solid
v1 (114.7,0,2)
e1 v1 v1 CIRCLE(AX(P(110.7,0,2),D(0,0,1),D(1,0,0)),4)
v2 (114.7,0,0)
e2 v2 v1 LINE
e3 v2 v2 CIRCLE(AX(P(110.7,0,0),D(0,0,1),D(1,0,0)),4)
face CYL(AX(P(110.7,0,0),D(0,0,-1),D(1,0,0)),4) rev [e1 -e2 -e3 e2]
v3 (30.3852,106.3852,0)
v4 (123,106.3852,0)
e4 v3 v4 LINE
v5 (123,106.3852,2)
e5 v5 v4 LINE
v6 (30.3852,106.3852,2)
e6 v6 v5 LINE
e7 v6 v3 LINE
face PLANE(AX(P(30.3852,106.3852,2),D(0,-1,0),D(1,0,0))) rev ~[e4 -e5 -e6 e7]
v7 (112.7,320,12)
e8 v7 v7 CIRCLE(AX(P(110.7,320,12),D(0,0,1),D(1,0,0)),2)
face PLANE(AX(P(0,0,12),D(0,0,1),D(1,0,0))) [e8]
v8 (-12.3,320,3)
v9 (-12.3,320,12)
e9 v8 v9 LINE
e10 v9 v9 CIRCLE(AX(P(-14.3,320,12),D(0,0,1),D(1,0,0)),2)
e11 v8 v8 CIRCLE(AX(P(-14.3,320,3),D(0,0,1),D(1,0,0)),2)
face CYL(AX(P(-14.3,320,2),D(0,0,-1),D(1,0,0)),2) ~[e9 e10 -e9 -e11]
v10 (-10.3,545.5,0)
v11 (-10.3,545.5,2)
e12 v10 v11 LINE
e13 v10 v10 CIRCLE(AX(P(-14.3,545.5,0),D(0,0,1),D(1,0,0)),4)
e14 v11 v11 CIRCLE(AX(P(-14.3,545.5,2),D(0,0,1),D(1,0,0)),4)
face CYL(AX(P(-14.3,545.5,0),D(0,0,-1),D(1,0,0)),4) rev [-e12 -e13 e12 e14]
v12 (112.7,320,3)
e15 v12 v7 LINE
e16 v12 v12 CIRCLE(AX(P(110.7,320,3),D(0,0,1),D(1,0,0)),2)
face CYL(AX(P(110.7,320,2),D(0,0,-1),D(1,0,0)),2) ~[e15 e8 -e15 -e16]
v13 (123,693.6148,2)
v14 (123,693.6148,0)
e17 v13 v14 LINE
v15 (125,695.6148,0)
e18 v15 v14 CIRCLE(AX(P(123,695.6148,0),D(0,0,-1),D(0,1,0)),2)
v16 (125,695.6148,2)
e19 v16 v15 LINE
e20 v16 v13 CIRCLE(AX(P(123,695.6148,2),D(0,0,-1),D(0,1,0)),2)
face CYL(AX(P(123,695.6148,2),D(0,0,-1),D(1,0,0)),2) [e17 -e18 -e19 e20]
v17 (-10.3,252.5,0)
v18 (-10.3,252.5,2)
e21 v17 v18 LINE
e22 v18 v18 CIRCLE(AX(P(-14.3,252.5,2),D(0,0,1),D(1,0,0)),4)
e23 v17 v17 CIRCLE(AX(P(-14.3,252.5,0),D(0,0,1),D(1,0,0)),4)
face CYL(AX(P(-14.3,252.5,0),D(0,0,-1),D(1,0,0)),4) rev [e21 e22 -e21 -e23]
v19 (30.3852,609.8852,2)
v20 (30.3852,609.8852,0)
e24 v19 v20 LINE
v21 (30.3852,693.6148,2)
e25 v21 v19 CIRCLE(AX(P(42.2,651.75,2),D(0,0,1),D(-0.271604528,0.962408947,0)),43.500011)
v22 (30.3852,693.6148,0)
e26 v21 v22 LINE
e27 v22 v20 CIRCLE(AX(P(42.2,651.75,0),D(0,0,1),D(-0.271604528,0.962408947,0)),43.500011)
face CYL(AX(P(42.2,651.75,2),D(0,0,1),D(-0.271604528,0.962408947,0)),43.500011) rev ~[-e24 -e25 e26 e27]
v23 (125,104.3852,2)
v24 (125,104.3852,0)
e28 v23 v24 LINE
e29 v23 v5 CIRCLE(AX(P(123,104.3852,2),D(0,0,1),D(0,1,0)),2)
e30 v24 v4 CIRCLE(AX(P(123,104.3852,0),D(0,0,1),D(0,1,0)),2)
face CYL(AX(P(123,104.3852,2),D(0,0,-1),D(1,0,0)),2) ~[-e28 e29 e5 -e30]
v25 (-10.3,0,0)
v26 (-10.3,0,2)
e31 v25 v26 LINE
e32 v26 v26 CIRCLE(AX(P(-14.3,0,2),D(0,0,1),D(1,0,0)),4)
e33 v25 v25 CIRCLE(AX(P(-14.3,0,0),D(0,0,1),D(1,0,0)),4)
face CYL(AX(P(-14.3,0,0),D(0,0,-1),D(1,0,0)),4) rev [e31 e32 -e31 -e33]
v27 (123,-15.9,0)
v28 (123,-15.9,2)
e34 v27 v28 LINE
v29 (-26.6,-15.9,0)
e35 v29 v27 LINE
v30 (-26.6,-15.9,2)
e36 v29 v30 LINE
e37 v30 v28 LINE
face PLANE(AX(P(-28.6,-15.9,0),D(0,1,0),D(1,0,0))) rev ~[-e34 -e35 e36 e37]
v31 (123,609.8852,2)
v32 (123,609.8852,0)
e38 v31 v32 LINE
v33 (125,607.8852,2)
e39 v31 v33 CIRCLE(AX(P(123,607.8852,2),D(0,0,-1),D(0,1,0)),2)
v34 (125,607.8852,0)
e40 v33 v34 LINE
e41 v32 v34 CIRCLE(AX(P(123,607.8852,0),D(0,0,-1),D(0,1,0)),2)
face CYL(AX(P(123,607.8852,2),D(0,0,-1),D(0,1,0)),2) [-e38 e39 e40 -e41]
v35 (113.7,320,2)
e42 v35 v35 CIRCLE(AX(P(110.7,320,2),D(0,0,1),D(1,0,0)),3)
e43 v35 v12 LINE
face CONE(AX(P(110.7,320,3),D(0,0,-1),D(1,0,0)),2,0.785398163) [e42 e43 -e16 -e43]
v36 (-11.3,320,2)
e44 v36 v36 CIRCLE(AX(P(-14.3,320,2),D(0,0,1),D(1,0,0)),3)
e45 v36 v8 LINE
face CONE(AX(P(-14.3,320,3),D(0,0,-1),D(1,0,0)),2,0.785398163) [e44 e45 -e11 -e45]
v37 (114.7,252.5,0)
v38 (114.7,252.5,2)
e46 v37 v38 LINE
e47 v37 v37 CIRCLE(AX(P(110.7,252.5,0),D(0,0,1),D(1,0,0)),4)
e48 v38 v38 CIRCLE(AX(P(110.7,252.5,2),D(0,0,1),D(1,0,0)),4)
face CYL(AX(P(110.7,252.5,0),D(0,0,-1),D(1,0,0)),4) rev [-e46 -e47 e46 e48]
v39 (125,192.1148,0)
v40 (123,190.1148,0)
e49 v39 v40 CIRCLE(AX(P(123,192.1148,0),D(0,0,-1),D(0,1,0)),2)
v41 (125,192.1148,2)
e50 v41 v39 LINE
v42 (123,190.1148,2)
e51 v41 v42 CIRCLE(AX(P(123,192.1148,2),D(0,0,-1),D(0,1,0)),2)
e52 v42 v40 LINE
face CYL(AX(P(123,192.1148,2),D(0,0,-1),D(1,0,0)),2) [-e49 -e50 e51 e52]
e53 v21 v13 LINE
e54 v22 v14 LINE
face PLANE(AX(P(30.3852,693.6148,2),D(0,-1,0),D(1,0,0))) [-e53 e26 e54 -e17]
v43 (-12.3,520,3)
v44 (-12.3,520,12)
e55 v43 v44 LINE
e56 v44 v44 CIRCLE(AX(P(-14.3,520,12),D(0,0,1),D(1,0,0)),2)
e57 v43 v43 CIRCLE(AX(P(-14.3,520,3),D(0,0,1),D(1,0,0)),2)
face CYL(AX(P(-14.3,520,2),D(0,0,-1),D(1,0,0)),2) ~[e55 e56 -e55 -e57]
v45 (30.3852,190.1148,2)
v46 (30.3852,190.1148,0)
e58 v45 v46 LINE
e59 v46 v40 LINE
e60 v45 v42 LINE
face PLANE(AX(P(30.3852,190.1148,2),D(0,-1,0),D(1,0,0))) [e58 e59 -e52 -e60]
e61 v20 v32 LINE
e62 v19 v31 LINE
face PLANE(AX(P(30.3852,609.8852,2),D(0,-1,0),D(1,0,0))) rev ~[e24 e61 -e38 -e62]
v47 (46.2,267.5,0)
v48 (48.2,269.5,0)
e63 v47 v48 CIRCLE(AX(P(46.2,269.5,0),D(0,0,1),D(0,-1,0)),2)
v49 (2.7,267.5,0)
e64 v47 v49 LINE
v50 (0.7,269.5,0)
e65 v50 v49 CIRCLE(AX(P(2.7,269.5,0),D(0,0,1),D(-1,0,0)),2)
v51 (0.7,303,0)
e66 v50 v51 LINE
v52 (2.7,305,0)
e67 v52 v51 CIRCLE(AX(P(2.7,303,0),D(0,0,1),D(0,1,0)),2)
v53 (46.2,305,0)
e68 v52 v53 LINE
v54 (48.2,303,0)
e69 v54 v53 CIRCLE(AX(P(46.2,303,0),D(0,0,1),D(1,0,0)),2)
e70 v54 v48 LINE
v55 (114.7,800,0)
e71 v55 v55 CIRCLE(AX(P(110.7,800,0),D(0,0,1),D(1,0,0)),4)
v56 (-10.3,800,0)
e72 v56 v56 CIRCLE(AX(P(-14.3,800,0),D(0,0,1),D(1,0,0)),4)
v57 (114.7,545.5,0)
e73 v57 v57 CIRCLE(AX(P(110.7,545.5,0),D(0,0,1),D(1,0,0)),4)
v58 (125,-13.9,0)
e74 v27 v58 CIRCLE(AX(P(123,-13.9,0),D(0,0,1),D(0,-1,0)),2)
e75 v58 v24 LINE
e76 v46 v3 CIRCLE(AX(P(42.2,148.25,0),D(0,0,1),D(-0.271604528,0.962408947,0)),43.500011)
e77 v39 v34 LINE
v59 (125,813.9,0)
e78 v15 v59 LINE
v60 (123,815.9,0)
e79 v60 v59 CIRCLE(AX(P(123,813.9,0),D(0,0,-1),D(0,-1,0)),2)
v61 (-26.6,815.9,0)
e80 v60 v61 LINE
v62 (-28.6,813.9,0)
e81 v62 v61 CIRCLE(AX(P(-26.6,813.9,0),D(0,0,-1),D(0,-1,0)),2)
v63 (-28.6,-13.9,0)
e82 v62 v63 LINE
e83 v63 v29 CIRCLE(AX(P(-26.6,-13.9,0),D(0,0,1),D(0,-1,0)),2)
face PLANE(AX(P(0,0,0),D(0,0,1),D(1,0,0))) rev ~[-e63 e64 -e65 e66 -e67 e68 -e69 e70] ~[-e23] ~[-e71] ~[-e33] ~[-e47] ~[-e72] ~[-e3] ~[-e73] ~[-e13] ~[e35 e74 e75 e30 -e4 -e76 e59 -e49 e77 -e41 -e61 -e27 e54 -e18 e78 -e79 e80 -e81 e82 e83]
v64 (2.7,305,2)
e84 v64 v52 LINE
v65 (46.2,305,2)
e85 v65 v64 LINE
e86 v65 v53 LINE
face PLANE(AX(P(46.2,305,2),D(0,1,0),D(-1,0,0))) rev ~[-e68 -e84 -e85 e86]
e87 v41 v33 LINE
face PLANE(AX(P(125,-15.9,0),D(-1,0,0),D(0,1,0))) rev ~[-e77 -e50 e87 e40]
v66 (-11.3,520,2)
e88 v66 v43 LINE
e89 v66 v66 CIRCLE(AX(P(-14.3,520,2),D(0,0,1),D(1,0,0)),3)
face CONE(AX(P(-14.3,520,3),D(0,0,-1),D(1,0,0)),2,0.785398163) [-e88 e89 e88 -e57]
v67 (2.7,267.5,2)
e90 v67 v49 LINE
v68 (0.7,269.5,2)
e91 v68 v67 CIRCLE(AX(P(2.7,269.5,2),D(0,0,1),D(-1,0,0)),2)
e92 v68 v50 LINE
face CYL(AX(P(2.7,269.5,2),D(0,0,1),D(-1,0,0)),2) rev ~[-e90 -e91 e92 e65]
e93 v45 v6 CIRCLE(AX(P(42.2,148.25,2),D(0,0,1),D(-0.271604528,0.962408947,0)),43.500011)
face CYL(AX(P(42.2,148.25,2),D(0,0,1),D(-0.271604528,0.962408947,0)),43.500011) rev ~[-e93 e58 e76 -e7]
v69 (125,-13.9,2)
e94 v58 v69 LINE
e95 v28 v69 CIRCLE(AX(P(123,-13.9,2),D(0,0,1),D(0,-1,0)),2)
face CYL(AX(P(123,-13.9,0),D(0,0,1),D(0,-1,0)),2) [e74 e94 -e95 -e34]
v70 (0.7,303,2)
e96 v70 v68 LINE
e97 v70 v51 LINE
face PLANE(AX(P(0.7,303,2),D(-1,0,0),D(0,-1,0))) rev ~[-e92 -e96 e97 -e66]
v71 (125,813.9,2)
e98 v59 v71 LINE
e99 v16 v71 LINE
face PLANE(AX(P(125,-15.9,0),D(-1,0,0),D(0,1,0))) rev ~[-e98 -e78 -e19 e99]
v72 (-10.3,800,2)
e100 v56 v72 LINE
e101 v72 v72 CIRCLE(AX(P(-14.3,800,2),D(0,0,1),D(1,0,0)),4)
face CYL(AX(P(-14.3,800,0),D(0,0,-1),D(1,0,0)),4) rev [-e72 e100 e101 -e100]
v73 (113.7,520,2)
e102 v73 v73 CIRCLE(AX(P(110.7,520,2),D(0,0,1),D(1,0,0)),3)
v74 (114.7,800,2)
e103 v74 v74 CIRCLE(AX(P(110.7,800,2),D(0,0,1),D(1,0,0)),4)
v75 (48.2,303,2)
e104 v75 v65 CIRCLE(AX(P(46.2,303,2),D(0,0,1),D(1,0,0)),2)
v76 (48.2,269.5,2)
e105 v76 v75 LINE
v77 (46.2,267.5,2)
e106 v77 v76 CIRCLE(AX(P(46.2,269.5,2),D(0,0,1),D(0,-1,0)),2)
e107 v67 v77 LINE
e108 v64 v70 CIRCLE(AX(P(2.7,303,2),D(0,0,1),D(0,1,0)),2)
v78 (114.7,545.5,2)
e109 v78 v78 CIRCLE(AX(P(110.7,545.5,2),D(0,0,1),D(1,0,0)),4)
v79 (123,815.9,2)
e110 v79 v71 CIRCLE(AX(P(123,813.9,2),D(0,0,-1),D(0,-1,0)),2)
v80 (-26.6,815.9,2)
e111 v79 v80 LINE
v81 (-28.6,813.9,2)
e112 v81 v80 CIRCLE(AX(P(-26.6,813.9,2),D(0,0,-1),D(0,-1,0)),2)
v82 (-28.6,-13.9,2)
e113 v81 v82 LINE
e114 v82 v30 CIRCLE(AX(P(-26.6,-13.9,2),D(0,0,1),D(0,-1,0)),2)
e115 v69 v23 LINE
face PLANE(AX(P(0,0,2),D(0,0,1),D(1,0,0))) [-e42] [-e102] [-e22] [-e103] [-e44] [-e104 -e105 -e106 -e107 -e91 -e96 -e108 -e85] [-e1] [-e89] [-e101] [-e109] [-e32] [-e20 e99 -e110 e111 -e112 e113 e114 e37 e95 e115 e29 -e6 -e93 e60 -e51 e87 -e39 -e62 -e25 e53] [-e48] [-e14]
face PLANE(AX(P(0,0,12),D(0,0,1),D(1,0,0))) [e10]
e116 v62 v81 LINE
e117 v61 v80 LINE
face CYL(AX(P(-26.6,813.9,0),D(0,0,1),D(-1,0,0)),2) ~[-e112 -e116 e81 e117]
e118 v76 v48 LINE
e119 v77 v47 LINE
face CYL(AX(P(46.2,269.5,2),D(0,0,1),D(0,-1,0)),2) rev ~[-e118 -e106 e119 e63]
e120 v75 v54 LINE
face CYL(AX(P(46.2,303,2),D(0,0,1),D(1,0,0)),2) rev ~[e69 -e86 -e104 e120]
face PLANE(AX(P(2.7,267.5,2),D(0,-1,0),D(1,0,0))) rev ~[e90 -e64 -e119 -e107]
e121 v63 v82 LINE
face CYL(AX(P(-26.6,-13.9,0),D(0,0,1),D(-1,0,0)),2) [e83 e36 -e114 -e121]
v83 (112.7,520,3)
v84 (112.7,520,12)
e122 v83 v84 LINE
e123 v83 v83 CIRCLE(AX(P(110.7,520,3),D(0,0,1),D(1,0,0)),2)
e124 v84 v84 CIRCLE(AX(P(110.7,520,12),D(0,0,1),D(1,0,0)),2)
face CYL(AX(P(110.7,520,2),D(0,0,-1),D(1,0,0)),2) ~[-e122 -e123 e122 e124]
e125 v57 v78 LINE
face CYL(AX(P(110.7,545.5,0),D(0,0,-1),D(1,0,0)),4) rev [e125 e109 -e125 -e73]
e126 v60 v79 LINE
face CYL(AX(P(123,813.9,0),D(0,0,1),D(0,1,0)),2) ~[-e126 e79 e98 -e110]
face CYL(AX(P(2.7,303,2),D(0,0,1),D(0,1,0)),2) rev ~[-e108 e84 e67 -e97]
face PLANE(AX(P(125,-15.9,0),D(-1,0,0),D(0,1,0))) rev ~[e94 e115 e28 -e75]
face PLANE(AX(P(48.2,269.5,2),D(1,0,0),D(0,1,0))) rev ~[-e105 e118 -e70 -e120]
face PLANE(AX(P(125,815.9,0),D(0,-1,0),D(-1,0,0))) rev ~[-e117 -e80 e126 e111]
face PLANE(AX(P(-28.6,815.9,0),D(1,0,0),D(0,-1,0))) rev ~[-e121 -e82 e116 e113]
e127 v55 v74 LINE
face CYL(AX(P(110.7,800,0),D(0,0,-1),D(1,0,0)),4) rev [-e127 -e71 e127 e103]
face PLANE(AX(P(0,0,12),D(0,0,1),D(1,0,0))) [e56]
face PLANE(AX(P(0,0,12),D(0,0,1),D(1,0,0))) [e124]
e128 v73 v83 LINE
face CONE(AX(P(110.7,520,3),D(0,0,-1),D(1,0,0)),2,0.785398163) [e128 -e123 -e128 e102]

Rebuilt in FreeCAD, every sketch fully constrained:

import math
import FreeCAD as App
import Part
import Sketcher


def edges_at(feature, points):
    """Names of the edges that pass closest to the given points."""
    edges = feature.Shape.Edges
    near = lambda p: min(range(len(edges)), key=lambda i: edges[i].distToShape(Part.Vertex(*p))[0])
    return sorted({f"Edge{near(p) + 1}" for p in points})

doc = App.newDocument("Part")
body = doc.addObject("PartDesign::Body", "Body")

sketch1 = body.newObject("Sketcher::SketchObject", "Sketch")
sketch1.AttachmentSupport = (doc.getObject("XY_Plane"), [""])
sketch1.MapMode = "FlatFace"
sketch1.addGeometry([
    Part.LineSegment(App.Vector(-28.6, 815.9, 0), App.Vector(-28.6, -15.9, 0)),
    Part.LineSegment(App.Vector(-28.6, -15.9, 0), App.Vector(125, -15.9, 0)),
    Part.LineSegment(App.Vector(125, -15.9, 0), App.Vector(125, 815.9, 0)),
    Part.LineSegment(App.Vector(125, 815.9, 0), App.Vector(-28.6, 815.9, 0)),
    Part.Circle(App.Vector(-14.3, 0, 0), App.Vector(0, 0, 1), 4),
    Part.Circle(App.Vector(-14.3, 252.5, 0), App.Vector(0, 0, 1), 4),
    Part.Circle(App.Vector(110.7, 0, 0), App.Vector(0, 0, 1), 4),
    Part.Circle(App.Vector(110.7, 252.5, 0), App.Vector(0, 0, 1), 4),
    Part.Circle(App.Vector(-14.3, 545.5, 0), App.Vector(0, 0, 1), 4),
    Part.Circle(App.Vector(-14.3, 800, 0), App.Vector(0, 0, 1), 4),
    Part.Circle(App.Vector(110.7, 545.5, 0), App.Vector(0, 0, 1), 4),
    Part.Circle(App.Vector(110.7, 800, 0), App.Vector(0, 0, 1), 4),
], False)
sketch1.addConstraint([
    Sketcher.Constraint("Coincident", 0, 2, 1, 1),
    Sketcher.Constraint("Coincident", 1, 2, 2, 1),
    Sketcher.Constraint("Coincident", 2, 2, 3, 1),
    Sketcher.Constraint("Coincident", 3, 2, 0, 1),
    Sketcher.Constraint("Vertical", 0),
    Sketcher.Constraint("Horizontal", 1),
    Sketcher.Constraint("Vertical", 2),
    Sketcher.Constraint("Horizontal", 3),
    Sketcher.Constraint("Equal", 4, 5),
    Sketcher.Constraint("Equal", 5, 6),
    Sketcher.Constraint("Equal", 6, 7),
    Sketcher.Constraint("Equal", 7, 8),
    Sketcher.Constraint("Equal", 8, 9),
    Sketcher.Constraint("Equal", 9, 10),
    Sketcher.Constraint("Equal", 10, 11),
    Sketcher.Constraint("PointOnObject", 4, 3, -1),
    Sketcher.Constraint("PointOnObject", 6, 3, -1),
    Sketcher.Constraint("Horizontal", 5, 3, 7, 3),
    Sketcher.Constraint("Horizontal", 8, 3, 10, 3),
    Sketcher.Constraint("Horizontal", 9, 3, 11, 3),
    Sketcher.Constraint("Vertical", 4, 3, 5, 3),
    Sketcher.Constraint("Vertical", 6, 3, 7, 3),
    Sketcher.Constraint("Vertical", 5, 3, 8, 3),
    Sketcher.Constraint("Vertical", 8, 3, 9, 3),
    Sketcher.Constraint("Vertical", 7, 3, 10, 3),
    Sketcher.Constraint("Vertical", 10, 3, 11, 3),
    Sketcher.Constraint("Diameter", 4, 8.0),
    Sketcher.Constraint("DistanceX", 1, 1, 1, 2, 153.6),
    Sketcher.Constraint("DistanceY", 0, 2, 0, 1, 831.8),
    Sketcher.Constraint("DistanceY", -1, 1, 9, 3, 800.0),
    Sketcher.Constraint("DistanceX", -1, 1, 1, 2, 125.0),
    Sketcher.Constraint("DistanceX", 4, 3, 6, 3, 125.0),
    Sketcher.Constraint("DistanceY", 5, 3, 8, 3, 293.0),
    Sketcher.Constraint("DistanceX", 4, 3, -1, 1, 14.3),
    Sketcher.Constraint("DistanceY", -1, 1, 5, 3, 252.5),
    Sketcher.Constraint("DistanceY", 0, 2, -1, 1, 15.9),
])
pad1 = body.newObject("PartDesign::Pad", "Pad")
pad1.Profile = sketch1
pad1.Length = 2

sketch2 = body.newObject("Sketcher::SketchObject", "Sketch001")
sketch2.AttachmentSupport = (doc.getObject("XY_Plane"), [""])
sketch2.MapMode = "FlatFace"
sketch2.AttachmentOffset = App.Placement(App.Vector(0, 0, 2), App.Rotation())
sketch2.addGeometry([
    Part.LineSegment(App.Vector(125, 190, 0), App.Vector(30, 190, 0)),
    Part.ArcOfCircle(Part.Circle(App.Vector(42, 148, 0), App.Vector(0, 0, 1), 44), math.radians(106), math.radians(254)),
    Part.LineSegment(App.Vector(30, 106, 0), App.Vector(125, 106, 0)),
    Part.LineSegment(App.Vector(125, 106, 0), App.Vector(125, 190, 0)),
    Part.LineSegment(App.Vector(125, 694, 0), App.Vector(30, 694, 0)),
    Part.ArcOfCircle(Part.Circle(App.Vector(42, 652, 0), App.Vector(0, 0, 1), 44), math.radians(106), math.radians(254)),
    Part.LineSegment(App.Vector(30, 610, 0), App.Vector(125, 610, 0)),
    Part.LineSegment(App.Vector(125, 610, 0), App.Vector(125, 694, 0)),
], False)
sketch2.addConstraint([
    Sketcher.Constraint("Coincident", 0, 2, 1, 1),
    Sketcher.Constraint("Coincident", 1, 2, 2, 1),
    Sketcher.Constraint("Coincident", 2, 2, 3, 1),
    Sketcher.Constraint("Coincident", 3, 2, 0, 1),
    Sketcher.Constraint("Coincident", 4, 2, 5, 1),
    Sketcher.Constraint("Coincident", 5, 2, 6, 1),
    Sketcher.Constraint("Coincident", 6, 2, 7, 1),
    Sketcher.Constraint("Coincident", 7, 2, 4, 1),
    Sketcher.Constraint("Horizontal", 0),
    Sketcher.Constraint("Horizontal", 2),
    Sketcher.Constraint("Vertical", 3),
    Sketcher.Constraint("Horizontal", 4),
    Sketcher.Constraint("Horizontal", 6),
    Sketcher.Constraint("Vertical", 7),
    Sketcher.Constraint("Equal", 1, 5),
    Sketcher.Constraint("Vertical", 1, 3, 5, 3),
    Sketcher.Constraint("Vertical", 0, 2, 1, 2),
    Sketcher.Constraint("Vertical", 1, 2, 4, 2),
    Sketcher.Constraint("Vertical", 4, 2, 5, 2),
    Sketcher.Constraint("Vertical", 3, 2, 6, 2),
    Sketcher.Constraint("Radius", 1, 43.5),
    Sketcher.Constraint("DistanceY", 3, 1, 3, 2, 83.7296),
    Sketcher.Constraint("DistanceX", -1, 1, 2, 2, 125.0),
    Sketcher.Constraint("DistanceX", -1, 1, 1, 3, 42.2),
    Sketcher.Constraint("DistanceY", 1, 3, 5, 3, 503.5),
    Sketcher.Constraint("DistanceY", -1, 1, 1, 3, 148.25),
])
pocket1 = body.newObject("PartDesign::Pocket", "Pocket")
pocket1.Profile = sketch2
pocket1.Length = 2
doc.recompute()

fillet = body.newObject("PartDesign::Fillet", "Fillet")
fillet.Base = (pocket1, edges_at(pocket1, [
    (-28.6, -15.9, 1),
    (125, -15.9, 1),
    (-28.6, 815.9, 1),
    (125, 815.9, 1),
    (125, 693.615, 1),
    (125, 609.885, 1),
    (125, 106.385, 1),
    (125, 190.115, 1),
]))
fillet.Radius = 2

sketch3 = body.newObject("Sketcher::SketchObject", "Sketch002")
sketch3.AttachmentSupport = (doc.getObject("XY_Plane"), [""])
sketch3.MapMode = "FlatFace"
sketch3.AttachmentOffset = App.Placement(App.Vector(0, 0, 2), App.Rotation())
sketch3.addGeometry([
    Part.Circle(App.Vector(-14.3, 520, 0), App.Vector(0, 0, 1), 2),
    Part.Circle(App.Vector(-14.3, 320, 0), App.Vector(0, 0, 1), 2),
    Part.Circle(App.Vector(110.7, 320, 0), App.Vector(0, 0, 1), 2),
    Part.Circle(App.Vector(110.7, 520, 0), App.Vector(0, 0, 1), 2),
], False)
sketch3.addConstraint([
    Sketcher.Constraint("Equal", 0, 1),
    Sketcher.Constraint("Equal", 1, 2),
    Sketcher.Constraint("Equal", 2, 3),
    Sketcher.Constraint("Horizontal", 1, 3, 2, 3),
    Sketcher.Constraint("Horizontal", 0, 3, 3, 3),
    Sketcher.Constraint("Vertical", 0, 3, 1, 3),
    Sketcher.Constraint("Vertical", 2, 3, 3, 3),
    Sketcher.Constraint("Diameter", 0, 4.0),
    Sketcher.Constraint("DistanceY", 1, 3, 0, 3, 200.0),
    Sketcher.Constraint("DistanceY", -1, 1, 0, 3, 520.0),
    Sketcher.Constraint("DistanceX", 1, 3, 2, 3, 125.0),
    Sketcher.Constraint("DistanceX", 0, 3, -1, 1, 14.3),
])
pad2 = body.newObject("PartDesign::Pad", "Pad001")
pad2.Profile = sketch3
pad2.Length = 10
doc.recompute()

chamfer = body.newObject("PartDesign::Chamfer", "Chamfer")
chamfer.Base = (pad2, edges_at(pad2, [
    (-16.3, 320, 2),
    (-16.3, 520, 2),
    (108.7, 520, 2),
    (108.7, 320, 2),
]))
chamfer.Size = 1

sketch4 = body.newObject("Sketcher::SketchObject", "Sketch003")
sketch4.AttachmentSupport = (doc.getObject("XY_Plane"), [""])
sketch4.MapMode = "FlatFace"
sketch4.AttachmentOffset = App.Placement(App.Vector(0, 0, 2), App.Rotation())
sketch4.addGeometry([
    Part.ArcOfCircle(Part.Circle(App.Vector(2.7, 269.5, 0), App.Vector(0, 0, 1), 2), math.radians(180), math.radians(270)),
    Part.LineSegment(App.Vector(2.7, 267.5, 0), App.Vector(46.2, 267.5, 0)),
    Part.ArcOfCircle(Part.Circle(App.Vector(46.2, 269.5, 0), App.Vector(0, 0, 1), 2), math.radians(-90), math.radians(0)),
    Part.LineSegment(App.Vector(48.2, 269.5, 0), App.Vector(48.2, 303, 0)),
    Part.ArcOfCircle(Part.Circle(App.Vector(46.2, 303, 0), App.Vector(0, 0, 1), 2), math.radians(0), math.radians(90)),
    Part.LineSegment(App.Vector(46.2, 305, 0), App.Vector(2.7, 305, 0)),
    Part.ArcOfCircle(Part.Circle(App.Vector(2.7, 303, 0), App.Vector(0, 0, 1), 2), math.radians(90), math.radians(180)),
    Part.LineSegment(App.Vector(0.7, 303, 0), App.Vector(0.7, 269.5, 0)),
], False)
sketch4.addConstraint([
    Sketcher.Constraint("Tangent", 0, 2, 1, 1),
    Sketcher.Constraint("Tangent", 1, 2, 2, 1),
    Sketcher.Constraint("Tangent", 2, 2, 3, 1),
    Sketcher.Constraint("Tangent", 3, 2, 4, 1),
    Sketcher.Constraint("Tangent", 4, 2, 5, 1),
    Sketcher.Constraint("Tangent", 5, 2, 6, 1),
    Sketcher.Constraint("Tangent", 6, 2, 7, 1),
    Sketcher.Constraint("Tangent", 7, 2, 0, 1),
    Sketcher.Constraint("Horizontal", 1),
    Sketcher.Constraint("Vertical", 3),
    Sketcher.Constraint("Horizontal", 5),
    Sketcher.Constraint("Vertical", 7),
    Sketcher.Constraint("Equal", 0, 2),
    Sketcher.Constraint("Equal", 2, 4),
    Sketcher.Constraint("Equal", 4, 6),
    Sketcher.Constraint("Radius", 0, 2.0),
    Sketcher.Constraint("DistanceX", 1, 1, 1, 2, 43.5),
    Sketcher.Constraint("DistanceY", 3, 1, 3, 2, 33.5),
    Sketcher.Constraint("DistanceY", -1, 1, 4, 3, 303.0),
    Sketcher.Constraint("DistanceX", -1, 1, 0, 3, 2.7),
])
pocket2 = body.newObject("PartDesign::Pocket", "Pocket001")
pocket2.Profile = sketch4
pocket2.Type = "UpToFirst"

doc.recompute()
